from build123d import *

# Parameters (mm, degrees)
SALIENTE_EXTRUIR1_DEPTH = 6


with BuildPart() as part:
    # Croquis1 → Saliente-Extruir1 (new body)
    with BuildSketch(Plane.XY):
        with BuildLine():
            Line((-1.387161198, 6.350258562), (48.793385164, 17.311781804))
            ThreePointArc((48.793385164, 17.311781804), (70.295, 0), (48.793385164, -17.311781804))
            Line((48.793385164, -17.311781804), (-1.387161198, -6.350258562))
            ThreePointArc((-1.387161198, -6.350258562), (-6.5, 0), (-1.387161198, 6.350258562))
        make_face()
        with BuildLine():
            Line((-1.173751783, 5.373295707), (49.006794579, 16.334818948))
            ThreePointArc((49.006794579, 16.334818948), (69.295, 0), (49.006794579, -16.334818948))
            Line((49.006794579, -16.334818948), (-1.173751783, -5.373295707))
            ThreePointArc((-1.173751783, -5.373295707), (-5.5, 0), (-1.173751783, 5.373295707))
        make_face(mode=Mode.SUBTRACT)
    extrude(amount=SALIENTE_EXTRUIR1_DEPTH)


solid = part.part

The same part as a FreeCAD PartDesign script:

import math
import FreeCAD as App
import Part
import Sketcher
from FreeCAD import Vector

doc = App.newDocument("Part")
body = doc.addObject("PartDesign::Body", "Body")

# Sketch on XY plane
sketch1 = body.newObject("Sketcher::SketchObject", "Sketch")
sketch1.AttachmentSupport = (doc.getObject("XY_Plane"), [""])
sketch1.MapMode = "FlatFace"
sketch1.addGeometry([
    Part.LineSegment(Vector(49, 17, 0), Vector(-1, 6, 0)),  # 0
    Part.ArcOfCircle(Part.Circle(Vector(0, 0, 0), Vector(0, 0, 1), 6), math.radians(102), math.radians(258)),  # 1
    Part.LineSegment(Vector(-1, -6, 0), Vector(49, -17, 0)),  # 2
    Part.ArcOfCircle(Part.Circle(Vector(53, 0, 0), Vector(0, 0, 1), 18), math.radians(-102), math.radians(102)),  # 3
    Part.LineSegment(Vector(-1, 5, 0), Vector(49, 16, 0)),  # 4
    Part.ArcOfCircle(Part.Circle(Vector(53, 0, 0), Vector(0, 0, 1), 17), math.radians(-102), math.radians(102)),  # 5
    Part.LineSegment(Vector(49, -16, 0), Vector(-1, -5, 0)),  # 6
    Part.ArcOfCircle(Part.Circle(Vector(0, 0, 0), Vector(0, 0, 1), 6), math.radians(102), math.radians(258)),  # 7
], False)
sketch1.addConstraint([
    Sketcher.Constraint("Tangent", 0, 2, 1, 1),
    Sketcher.Constraint("Tangent", 1, 2, 2, 1),
    Sketcher.Constraint("Tangent", 2, 2, 3, 1),
    Sketcher.Constraint("Tangent", 3, 2, 0, 1),
    Sketcher.Constraint("Tangent", 4, 2, 5, 2),
    Sketcher.Constraint("Tangent", 5, 1, 6, 1),
    Sketcher.Constraint("Tangent", 6, 2, 7, 2),
    Sketcher.Constraint("Tangent", 7, 1, 4, 1),
    Sketcher.Constraint("Coincident", 1, 3, -1, 1),
    Sketcher.Constraint("Coincident", 7, 3, -1, 1),
    Sketcher.Constraint("Coincident", 5, 3, 3, 3),
    Sketcher.Constraint("PointOnObject", 3, 3, -1),
    Sketcher.Constraint("Parallel", 0, 4),
    Sketcher.Constraint("Radius", 1, 6.5),
    Sketcher.Constraint("Radius", 7, 5.5),
    Sketcher.Constraint("Radius", 3, 17.72),
    Sketcher.Constraint("DistanceX", -1, 1, 3, 3, 52.575),
])
pad1 = body.newObject("PartDesign::Pad", "Pad")
pad1.Profile = sketch1
pad1.Length = 6

doc.recompute()
